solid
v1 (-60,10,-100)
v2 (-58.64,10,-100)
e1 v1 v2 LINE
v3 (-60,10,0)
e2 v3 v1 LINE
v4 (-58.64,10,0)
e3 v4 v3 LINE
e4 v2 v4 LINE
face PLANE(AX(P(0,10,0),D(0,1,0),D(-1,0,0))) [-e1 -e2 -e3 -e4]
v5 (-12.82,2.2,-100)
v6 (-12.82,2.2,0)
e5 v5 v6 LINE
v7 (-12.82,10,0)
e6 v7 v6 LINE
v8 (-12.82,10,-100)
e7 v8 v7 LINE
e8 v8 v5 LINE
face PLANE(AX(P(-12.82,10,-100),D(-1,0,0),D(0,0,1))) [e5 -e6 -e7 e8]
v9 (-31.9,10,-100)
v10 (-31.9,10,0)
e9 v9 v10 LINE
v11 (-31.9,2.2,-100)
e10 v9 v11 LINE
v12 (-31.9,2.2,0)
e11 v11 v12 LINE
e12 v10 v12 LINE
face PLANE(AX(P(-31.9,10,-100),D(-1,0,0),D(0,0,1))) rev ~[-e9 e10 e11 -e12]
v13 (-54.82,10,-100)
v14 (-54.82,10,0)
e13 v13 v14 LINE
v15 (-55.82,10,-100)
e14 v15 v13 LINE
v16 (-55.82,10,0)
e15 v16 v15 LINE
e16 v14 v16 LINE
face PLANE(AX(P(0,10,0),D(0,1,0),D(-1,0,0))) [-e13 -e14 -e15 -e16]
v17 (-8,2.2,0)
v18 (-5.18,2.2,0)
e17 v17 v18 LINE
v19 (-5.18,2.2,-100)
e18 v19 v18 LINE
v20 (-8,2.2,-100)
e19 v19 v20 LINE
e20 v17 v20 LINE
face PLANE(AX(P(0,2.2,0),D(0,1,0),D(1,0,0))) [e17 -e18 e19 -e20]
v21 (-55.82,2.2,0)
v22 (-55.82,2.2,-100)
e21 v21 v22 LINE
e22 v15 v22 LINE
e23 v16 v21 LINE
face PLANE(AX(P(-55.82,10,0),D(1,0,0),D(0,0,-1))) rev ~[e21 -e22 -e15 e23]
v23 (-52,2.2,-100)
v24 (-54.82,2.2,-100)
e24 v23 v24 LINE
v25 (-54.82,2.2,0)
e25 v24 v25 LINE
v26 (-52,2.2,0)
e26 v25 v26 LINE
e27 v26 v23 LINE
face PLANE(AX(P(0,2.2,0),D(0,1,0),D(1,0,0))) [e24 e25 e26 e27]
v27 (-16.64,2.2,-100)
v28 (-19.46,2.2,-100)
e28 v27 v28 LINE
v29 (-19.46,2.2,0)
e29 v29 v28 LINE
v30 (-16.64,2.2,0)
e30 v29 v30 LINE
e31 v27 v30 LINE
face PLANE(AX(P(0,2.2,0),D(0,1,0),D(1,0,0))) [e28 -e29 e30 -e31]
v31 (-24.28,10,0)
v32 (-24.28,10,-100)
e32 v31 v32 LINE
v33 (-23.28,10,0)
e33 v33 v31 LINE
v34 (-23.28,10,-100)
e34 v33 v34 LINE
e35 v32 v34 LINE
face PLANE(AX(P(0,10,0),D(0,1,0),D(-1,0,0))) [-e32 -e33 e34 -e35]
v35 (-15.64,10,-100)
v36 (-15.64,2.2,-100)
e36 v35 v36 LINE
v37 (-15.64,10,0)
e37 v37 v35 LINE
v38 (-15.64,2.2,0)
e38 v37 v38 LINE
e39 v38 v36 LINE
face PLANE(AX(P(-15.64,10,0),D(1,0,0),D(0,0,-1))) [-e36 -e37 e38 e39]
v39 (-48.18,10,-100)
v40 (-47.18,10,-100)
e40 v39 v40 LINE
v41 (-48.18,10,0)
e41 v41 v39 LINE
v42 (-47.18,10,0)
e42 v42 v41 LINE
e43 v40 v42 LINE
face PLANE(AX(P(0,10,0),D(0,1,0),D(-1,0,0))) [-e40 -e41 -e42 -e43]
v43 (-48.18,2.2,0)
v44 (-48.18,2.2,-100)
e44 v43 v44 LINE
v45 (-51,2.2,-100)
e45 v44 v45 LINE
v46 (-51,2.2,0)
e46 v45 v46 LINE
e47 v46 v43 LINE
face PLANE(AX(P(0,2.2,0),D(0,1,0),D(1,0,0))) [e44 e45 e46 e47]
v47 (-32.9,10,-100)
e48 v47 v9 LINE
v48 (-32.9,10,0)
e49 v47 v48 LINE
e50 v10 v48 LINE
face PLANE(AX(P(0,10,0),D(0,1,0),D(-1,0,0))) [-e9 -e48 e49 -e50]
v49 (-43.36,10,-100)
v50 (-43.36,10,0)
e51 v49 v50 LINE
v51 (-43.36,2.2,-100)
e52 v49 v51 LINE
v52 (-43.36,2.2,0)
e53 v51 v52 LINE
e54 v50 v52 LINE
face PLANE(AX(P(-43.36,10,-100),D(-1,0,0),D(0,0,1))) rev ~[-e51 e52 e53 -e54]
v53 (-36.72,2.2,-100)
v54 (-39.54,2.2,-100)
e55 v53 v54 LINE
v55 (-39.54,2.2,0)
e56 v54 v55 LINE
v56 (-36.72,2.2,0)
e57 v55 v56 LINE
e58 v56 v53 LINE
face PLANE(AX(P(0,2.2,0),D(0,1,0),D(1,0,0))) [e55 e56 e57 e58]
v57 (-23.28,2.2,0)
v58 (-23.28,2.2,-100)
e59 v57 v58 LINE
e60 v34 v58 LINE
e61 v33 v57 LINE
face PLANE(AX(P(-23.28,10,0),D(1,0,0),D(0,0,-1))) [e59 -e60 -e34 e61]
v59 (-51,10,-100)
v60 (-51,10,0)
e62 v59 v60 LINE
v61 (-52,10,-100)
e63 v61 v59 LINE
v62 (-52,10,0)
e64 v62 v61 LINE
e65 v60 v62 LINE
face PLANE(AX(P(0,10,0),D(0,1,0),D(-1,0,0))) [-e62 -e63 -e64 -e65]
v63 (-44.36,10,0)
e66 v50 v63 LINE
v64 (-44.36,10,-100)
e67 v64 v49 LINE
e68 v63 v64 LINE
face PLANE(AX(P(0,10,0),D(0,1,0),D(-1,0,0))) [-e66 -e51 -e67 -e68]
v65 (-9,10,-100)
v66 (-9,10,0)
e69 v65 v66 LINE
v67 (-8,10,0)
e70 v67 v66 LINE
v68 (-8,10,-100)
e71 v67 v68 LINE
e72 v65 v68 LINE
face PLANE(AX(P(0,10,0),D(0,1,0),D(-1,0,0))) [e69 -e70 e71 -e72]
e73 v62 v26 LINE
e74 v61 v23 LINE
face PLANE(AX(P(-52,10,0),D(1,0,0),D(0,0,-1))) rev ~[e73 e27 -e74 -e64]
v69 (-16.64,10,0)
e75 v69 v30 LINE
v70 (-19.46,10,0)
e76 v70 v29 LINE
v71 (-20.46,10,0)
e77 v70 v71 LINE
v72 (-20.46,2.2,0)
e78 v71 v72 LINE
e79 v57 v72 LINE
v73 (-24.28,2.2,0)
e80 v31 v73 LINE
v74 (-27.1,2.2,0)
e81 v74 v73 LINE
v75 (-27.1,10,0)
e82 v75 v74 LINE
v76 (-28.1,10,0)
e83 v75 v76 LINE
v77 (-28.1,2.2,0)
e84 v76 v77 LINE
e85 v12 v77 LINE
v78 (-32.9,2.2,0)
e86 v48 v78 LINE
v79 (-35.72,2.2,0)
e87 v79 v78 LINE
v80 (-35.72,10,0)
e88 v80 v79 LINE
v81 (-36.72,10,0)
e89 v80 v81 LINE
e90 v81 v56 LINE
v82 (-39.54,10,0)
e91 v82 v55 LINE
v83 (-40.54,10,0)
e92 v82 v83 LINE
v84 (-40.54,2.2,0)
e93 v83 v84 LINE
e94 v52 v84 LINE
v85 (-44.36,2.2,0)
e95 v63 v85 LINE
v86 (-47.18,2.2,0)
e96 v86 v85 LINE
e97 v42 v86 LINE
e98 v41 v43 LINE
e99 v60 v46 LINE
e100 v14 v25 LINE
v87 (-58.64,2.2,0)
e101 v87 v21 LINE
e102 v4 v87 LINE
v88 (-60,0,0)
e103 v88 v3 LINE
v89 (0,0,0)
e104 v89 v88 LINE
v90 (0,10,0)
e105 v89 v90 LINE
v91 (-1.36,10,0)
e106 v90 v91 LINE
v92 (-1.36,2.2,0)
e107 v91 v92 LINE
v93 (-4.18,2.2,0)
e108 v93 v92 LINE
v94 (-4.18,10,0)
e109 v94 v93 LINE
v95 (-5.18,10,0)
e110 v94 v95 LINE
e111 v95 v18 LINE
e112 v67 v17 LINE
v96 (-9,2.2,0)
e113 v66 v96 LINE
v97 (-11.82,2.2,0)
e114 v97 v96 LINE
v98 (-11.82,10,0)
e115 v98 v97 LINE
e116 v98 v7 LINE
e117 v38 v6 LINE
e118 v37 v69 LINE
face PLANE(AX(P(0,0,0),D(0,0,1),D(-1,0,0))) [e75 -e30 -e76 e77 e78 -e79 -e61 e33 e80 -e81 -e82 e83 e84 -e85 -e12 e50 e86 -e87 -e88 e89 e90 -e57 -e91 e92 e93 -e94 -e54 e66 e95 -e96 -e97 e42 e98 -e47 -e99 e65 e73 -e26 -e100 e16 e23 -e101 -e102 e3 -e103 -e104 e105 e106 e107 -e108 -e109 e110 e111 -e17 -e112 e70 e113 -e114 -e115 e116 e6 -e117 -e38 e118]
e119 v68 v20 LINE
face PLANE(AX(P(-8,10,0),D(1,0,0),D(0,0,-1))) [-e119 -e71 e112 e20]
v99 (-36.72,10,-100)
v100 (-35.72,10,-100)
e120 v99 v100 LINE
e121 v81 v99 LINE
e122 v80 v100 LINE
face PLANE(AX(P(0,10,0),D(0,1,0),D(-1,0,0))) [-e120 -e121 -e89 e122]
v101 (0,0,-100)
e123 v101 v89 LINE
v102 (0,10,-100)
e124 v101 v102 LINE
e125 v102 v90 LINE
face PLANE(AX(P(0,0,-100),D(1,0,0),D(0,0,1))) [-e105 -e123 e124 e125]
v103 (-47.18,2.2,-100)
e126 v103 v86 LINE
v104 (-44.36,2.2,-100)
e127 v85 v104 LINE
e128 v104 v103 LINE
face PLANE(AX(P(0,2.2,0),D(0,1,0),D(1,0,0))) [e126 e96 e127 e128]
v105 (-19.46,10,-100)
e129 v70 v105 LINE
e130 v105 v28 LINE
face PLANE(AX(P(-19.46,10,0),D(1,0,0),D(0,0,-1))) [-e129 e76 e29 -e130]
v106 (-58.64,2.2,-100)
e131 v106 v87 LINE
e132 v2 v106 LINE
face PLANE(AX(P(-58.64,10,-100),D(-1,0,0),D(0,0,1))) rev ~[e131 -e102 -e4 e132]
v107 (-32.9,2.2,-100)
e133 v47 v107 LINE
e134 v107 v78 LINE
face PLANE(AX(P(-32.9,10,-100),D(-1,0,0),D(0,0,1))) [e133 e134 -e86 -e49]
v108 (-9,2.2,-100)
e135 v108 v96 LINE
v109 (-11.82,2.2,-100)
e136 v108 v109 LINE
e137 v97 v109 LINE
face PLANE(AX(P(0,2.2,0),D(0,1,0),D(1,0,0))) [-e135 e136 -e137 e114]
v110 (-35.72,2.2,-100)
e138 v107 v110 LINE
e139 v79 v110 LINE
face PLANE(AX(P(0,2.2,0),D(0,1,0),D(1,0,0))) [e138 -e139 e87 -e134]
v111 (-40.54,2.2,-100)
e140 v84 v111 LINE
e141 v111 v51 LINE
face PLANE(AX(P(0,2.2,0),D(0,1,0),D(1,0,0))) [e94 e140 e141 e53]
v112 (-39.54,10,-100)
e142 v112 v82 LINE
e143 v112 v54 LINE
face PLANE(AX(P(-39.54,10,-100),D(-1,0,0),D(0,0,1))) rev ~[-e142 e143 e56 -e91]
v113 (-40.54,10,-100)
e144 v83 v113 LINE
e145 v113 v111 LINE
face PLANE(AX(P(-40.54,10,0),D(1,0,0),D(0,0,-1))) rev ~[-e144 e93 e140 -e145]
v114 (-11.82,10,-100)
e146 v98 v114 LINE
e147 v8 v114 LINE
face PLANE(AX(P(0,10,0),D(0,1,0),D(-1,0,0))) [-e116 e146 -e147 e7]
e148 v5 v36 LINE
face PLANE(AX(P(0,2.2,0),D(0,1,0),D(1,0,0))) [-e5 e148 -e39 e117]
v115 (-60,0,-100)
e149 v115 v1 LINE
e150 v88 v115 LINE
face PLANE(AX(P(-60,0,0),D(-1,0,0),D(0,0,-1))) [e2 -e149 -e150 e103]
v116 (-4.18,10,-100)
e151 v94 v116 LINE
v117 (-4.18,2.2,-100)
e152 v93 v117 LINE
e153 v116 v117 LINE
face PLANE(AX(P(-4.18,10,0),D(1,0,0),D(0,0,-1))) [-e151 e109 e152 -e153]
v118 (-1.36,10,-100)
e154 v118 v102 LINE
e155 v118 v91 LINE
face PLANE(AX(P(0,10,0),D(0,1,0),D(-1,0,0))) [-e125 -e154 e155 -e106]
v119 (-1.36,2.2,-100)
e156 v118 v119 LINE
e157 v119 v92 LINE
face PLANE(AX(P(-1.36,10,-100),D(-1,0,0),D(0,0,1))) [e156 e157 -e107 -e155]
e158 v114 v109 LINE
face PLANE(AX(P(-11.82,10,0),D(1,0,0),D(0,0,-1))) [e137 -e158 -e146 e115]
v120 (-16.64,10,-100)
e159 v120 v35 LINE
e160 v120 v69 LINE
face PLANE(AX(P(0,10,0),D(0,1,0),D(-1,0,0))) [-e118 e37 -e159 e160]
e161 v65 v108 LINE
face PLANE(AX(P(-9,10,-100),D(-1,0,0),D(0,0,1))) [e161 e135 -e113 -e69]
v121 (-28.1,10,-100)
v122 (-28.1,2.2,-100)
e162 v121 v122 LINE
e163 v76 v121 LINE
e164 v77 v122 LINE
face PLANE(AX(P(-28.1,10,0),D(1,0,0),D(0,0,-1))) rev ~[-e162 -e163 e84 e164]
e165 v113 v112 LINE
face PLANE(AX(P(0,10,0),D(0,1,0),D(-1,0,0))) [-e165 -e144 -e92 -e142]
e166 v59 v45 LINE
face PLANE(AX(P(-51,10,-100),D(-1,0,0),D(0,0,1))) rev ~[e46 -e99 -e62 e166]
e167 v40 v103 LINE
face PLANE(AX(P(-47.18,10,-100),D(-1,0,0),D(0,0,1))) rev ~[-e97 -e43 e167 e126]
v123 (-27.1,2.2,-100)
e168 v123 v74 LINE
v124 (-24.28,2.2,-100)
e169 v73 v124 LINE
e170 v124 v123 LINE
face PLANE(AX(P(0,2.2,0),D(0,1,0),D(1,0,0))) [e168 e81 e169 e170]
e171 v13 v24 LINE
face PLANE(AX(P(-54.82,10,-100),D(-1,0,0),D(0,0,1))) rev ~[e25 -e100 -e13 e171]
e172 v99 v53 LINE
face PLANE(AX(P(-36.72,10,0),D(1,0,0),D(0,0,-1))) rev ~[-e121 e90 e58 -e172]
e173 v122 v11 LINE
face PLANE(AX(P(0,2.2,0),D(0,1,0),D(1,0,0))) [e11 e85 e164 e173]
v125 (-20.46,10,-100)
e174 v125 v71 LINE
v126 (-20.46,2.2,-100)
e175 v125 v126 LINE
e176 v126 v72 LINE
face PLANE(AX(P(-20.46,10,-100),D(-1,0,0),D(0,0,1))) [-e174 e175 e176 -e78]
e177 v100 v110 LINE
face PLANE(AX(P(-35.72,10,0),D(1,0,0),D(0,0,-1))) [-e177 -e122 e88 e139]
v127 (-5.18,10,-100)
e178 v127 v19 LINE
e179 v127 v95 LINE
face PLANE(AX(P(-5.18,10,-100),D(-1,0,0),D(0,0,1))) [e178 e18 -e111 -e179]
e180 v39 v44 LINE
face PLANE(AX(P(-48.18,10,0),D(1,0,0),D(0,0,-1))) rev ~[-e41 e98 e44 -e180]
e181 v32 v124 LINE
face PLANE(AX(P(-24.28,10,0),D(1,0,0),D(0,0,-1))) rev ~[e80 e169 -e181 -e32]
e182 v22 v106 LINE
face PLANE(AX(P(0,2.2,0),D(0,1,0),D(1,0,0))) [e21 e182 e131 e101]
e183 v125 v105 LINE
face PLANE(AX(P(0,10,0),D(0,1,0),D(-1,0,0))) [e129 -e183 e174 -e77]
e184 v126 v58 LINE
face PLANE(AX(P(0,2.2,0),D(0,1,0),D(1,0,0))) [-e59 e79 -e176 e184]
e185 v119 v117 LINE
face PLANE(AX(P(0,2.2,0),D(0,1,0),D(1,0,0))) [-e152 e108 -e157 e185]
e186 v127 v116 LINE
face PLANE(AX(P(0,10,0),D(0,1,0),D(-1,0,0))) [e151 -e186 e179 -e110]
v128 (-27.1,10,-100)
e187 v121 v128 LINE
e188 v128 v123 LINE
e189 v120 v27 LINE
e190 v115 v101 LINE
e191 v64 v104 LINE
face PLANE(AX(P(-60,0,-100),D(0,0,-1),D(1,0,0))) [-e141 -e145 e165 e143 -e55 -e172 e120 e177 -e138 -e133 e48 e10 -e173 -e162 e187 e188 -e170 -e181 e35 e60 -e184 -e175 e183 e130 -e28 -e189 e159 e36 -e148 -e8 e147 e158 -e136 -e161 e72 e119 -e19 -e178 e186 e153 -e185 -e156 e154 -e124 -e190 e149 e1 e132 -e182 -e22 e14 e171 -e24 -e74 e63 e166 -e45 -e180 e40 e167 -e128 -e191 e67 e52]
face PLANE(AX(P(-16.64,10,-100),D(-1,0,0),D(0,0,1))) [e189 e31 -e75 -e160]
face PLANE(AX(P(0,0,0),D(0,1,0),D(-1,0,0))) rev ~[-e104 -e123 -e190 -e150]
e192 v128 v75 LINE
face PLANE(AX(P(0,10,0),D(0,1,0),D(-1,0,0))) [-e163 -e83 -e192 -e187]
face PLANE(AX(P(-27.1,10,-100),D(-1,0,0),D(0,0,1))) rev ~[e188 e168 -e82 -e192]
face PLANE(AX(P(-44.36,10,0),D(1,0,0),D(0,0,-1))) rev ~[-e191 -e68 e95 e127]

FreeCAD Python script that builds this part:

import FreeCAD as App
import Part
import Sketcher
from FreeCAD import Vector
Q = App.Units.Quantity


def add_polygon(sketch, points):
    """Adds a closed chain of lines whose ends are joined by coincident constraints."""
    first, n = sketch.GeometryCount, len(points)
    for a, b in zip(points, points[1:] + points[:1]):
        sketch.addGeometry(Part.LineSegment(App.Vector(*a, 0), App.Vector(*b, 0)), False)
    for i in range(n):
        sketch.addConstraint(Sketcher.Constraint("Coincident", first + i, 2, first + (i + 1) % n, 1))

doc = App.newDocument("Part")
body = doc.addObject("PartDesign::Body", "Body")

sketch1 = body.newObject("Sketcher::SketchObject", "Sketch")
sketch1.AttachmentSupport = (doc.getObject("XZ_Plane"), [""])
sketch1.MapMode = "FlatFace"
add_polygon(sketch1, [(-60, 0), (0, 0), (0, -100), (-60, -100)])
sketch1.addConstraint(Sketcher.Constraint("Horizontal", 0))
sketch1.addConstraint(Sketcher.Constraint("Vertical", 1))
sketch1.addConstraint(Sketcher.Constraint("Horizontal", 2))
sketch1.addConstraint(Sketcher.Constraint("Vertical", 3))
sketch1.addConstraint(Sketcher.Constraint("Coincident", 0, 2, -1, 1))
sketch1.addConstraint(Sketcher.Constraint("DistanceX", 0, 1, 0, 2, Q("60 mm")))
sketch1.addConstraint(Sketcher.Constraint("DistanceY", 1, 2, 1, 1, Q("100 mm")))
pad1 = body.newObject("PartDesign::Pad", "Pad")
pad1.Profile = sketch1
pad1.Length = 10
pad1.Reversed = True

sketch2 = body.newObject("Sketcher::SketchObject", "Sketch001")
sketch2.AttachmentSupport = (doc.getObject("XZ_Plane"), [""])
sketch2.MapMode = "FlatFace"
sketch2.AttachmentOffset = App.Placement(Vector(0, 0, -10), App.Rotation())
add_polygon(sketch2, [(-58.6, -100), (-58.6, 0), (-55.8, 0), (-55.8, -100)])
add_polygon(sketch2, [(-54.8, -100), (-54.8, 0), (-52, 0), (-52, -100)])
add_polygon(sketch2, [(-51, -100), (-51, 0), (-48.2, 0), (-48.2, -100)])
add_polygon(sketch2, [(-47.2, -100), (-47.2, 0), (-44.4, 0), (-44.4, -100)])
add_polygon(sketch2, [(-43.4, -100), (-43.4, 0), (-40.5, 0), (-40.5, -100)])
add_polygon(sketch2, [(-39.5, -100), (-39.5, 0), (-36.7, 0), (-36.7, -100)])
add_polygon(sketch2, [(-35.7, -100), (-35.7, 0), (-32.9, 0), (-32.9, -100)])
add_polygon(sketch2, [(-31.9, -100), (-31.9, 0), (-28.1, 0), (-28.1, -100)])
add_polygon(sketch2, [(-27.1, -100), (-27.1, 0), (-24.3, 0), (-24.3, -100)])
add_polygon(sketch2, [(-23.3, -100), (-23.3, 0), (-20.5, 0), (-20.5, -100)])
add_polygon(sketch2, [(-19.5, -100), (-19.5, 0), (-16.6, 0), (-16.6, -100)])
add_polygon(sketch2, [(-15.6, -100), (-15.6, 0), (-12.8, 0), (-12.8, -100)])
add_polygon(sketch2, [(-11.8, -100), (-11.8, 0), (-9, 0), (-9, -100)])
add_polygon(sketch2, [(-8, -100), (-8, 0), (-5.2, 0), (-5.2, -100)])
add_polygon(sketch2, [(-4.2, -100), (-4.2, 0), (-1.4, 0), (-1.4, -100)])
sketch2.addConstraint(Sketcher.Constraint("Vertical", 0))
sketch2.addConstraint(Sketcher.Constraint("Horizontal", 1))
sketch2.addConstraint(Sketcher.Constraint("Vertical", 2))
sketch2.addConstraint(Sketcher.Constraint("Horizontal", 3))
sketch2.addConstraint(Sketcher.Constraint("Vertical", 4))
sketch2.addConstraint(Sketcher.Constraint("Horizontal", 5))
sketch2.addConstraint(Sketcher.Constraint("Vertical", 6))
sketch2.addConstraint(Sketcher.Constraint("Horizontal", 7))
sketch2.addConstraint(Sketcher.Constraint("Vertical", 8))
sketch2.addConstraint(Sketcher.Constraint("Horizontal", 9))
sketch2.addConstraint(Sketcher.Constraint("Vertical", 10))
sketch2.addConstraint(Sketcher.Constraint("Horizontal", 11))
sketch2.addConstraint(Sketcher.Constraint("Vertical", 12))
sketch2.addConstraint(Sketcher.Constraint("Horizontal", 13))
sketch2.addConstraint(Sketcher.Constraint("Vertical", 14))
sketch2.addConstraint(Sketcher.Constraint("Horizontal", 15))
sketch2.addConstraint(Sketcher.Constraint("Vertical", 16))
sketch2.addConstraint(Sketcher.Constraint("Horizontal", 17))
sketch2.addConstraint(Sketcher.Constraint("Vertical", 18))
sketch2.addConstraint(Sketcher.Constraint("Horizontal", 19))
sketch2.addConstraint(Sketcher.Constraint("Vertical", 20))
sketch2.addConstraint(Sketcher.Constraint("Horizontal", 21))
sketch2.addConstraint(Sketcher.Constraint("Vertical", 22))
sketch2.addConstraint(Sketcher.Constraint("Horizontal", 23))
sketch2.addConstraint(Sketcher.Constraint("Vertical", 24))
sketch2.addConstraint(Sketcher.Constraint("Horizontal", 25))
sketch2.addConstraint(Sketcher.Constraint("Vertical", 26))
sketch2.addConstraint(Sketcher.Constraint("Horizontal", 27))
sketch2.addConstraint(Sketcher.Constraint("Vertical", 28))
sketch2.addConstraint(Sketcher.Constraint("Horizontal", 29))
sketch2.addConstraint(Sketcher.Constraint("Vertical", 30))
sketch2.addConstraint(Sketcher.Constraint("Horizontal", 31))
sketch2.addConstraint(Sketcher.Constraint("Vertical", 32))
sketch2.addConstraint(Sketcher.Constraint("Horizontal", 33))
sketch2.addConstraint(Sketcher.Constraint("Vertical", 34))
sketch2.addConstraint(Sketcher.Constraint("Horizontal", 35))
sketch2.addConstraint(Sketcher.Constraint("Vertical", 36))
sketch2.addConstraint(Sketcher.Constraint("Horizontal", 37))
sketch2.addConstraint(Sketcher.Constraint("Vertical", 38))
sketch2.addConstraint(Sketcher.Constraint("Horizontal", 39))
sketch2.addConstraint(Sketcher.Constraint("Vertical", 40))
sketch2.addConstraint(Sketcher.Constraint("Horizontal", 41))
sketch2.addConstraint(Sketcher.Constraint("Vertical", 42))
sketch2.addConstraint(Sketcher.Constraint("Horizontal", 43))
sketch2.addConstraint(Sketcher.Constraint("Vertical", 44))
sketch2.addConstraint(Sketcher.Constraint("Horizontal", 45))
sketch2.addConstraint(Sketcher.Constraint("Vertical", 46))
sketch2.addConstraint(Sketcher.Constraint("Horizontal", 47))
sketch2.addConstraint(Sketcher.Constraint("Vertical", 48))
sketch2.addConstraint(Sketcher.Constraint("Horizontal", 49))
sketch2.addConstraint(Sketcher.Constraint("Vertical", 50))
sketch2.addConstraint(Sketcher.Constraint("Horizontal", 51))
sketch2.addConstraint(Sketcher.Constraint("Vertical", 52))
sketch2.addConstraint(Sketcher.Constraint("Horizontal", 53))
sketch2.addConstraint(Sketcher.Constraint("Vertical", 54))
sketch2.addConstraint(Sketcher.Constraint("Horizontal", 55))
sketch2.addConstraint(Sketcher.Constraint("Vertical", 56))
sketch2.addConstraint(Sketcher.Constraint("Horizontal", 57))
sketch2.addConstraint(Sketcher.Constraint("Vertical", 58))
sketch2.addConstraint(Sketcher.Constraint("Horizontal", 59))
sketch2.addConstraint(Sketcher.Constraint("PointOnObject", 0, 2, -1))
sketch2.addConstraint(Sketcher.Constraint("PointOnObject", 4, 2, -1))
sketch2.addConstraint(Sketcher.Constraint("PointOnObject", 8, 2, -1))
sketch2.addConstraint(Sketcher.Constraint("PointOnObject", 12, 2, -1))
sketch2.addConstraint(Sketcher.Constraint("PointOnObject", 16, 2, -1))
sketch2.addConstraint(Sketcher.Constraint("PointOnObject", 20, 2, -1))
sketch2.addConstraint(Sketcher.Constraint("PointOnObject", 24, 2, -1))
sketch2.addConstraint(Sketcher.Constraint("PointOnObject", 28, 2, -1))
sketch2.addConstraint(Sketcher.Constraint("PointOnObject", 32, 2, -1))
sketch2.addConstraint(Sketcher.Constraint("PointOnObject", 36, 2, -1))
sketch2.addConstraint(Sketcher.Constraint("PointOnObject", 40, 2, -1))
sketch2.addConstraint(Sketcher.Constraint("PointOnObject", 44, 2, -1))
sketch2.addConstraint(Sketcher.Constraint("PointOnObject", 48, 2, -1))
sketch2.addConstraint(Sketcher.Constraint("PointOnObject", 52, 2, -1))
sketch2.addConstraint(Sketcher.Constraint("PointOnObject", 56, 2, -1))
sketch2.addConstraint(Sketcher.Constraint("Horizontal", 3, 2, 6, 2))
sketch2.addConstraint(Sketcher.Constraint("Horizontal", 7, 2, 10, 2))
sketch2.addConstraint(Sketcher.Constraint("Horizontal", 11, 2, 14, 2))
sketch2.addConstraint(Sketcher.Constraint("Horizontal", 15, 2, 18, 2))
sketch2.addConstraint(Sketcher.Constraint("Horizontal", 19, 2, 22, 2))
sketch2.addConstraint(Sketcher.Constraint("Horizontal", 23, 2, 26, 2))
sketch2.addConstraint(Sketcher.Constraint("Horizontal", 27, 2, 30, 2))
sketch2.addConstraint(Sketcher.Constraint("Horizontal", 31, 2, 34, 2))
sketch2.addConstraint(Sketcher.Constraint("Horizontal", 35, 2, 38, 2))
sketch2.addConstraint(Sketcher.Constraint("Horizontal", 39, 2, 42, 2))
sketch2.addConstraint(Sketcher.Constraint("Horizontal", 43, 2, 46, 2))
sketch2.addConstraint(Sketcher.Constraint("Horizontal", 47, 2, 50, 2))
sketch2.addConstraint(Sketcher.Constraint("Horizontal", 51, 2, 54, 2))
sketch2.addConstraint(Sketcher.Constraint("Horizontal", 55, 2, 58, 2))
sketch2.addConstraint(Sketcher.Constraint("Equal", 3, 5))
sketch2.addConstraint(Sketcher.Constraint("Equal", 7, 9))
sketch2.addConstraint(Sketcher.Constraint("Equal", 11, 13))
sketch2.addConstraint(Sketcher.Constraint("Equal", 15, 17))
sketch2.addConstraint(Sketcher.Constraint("Equal", 19, 21))
sketch2.addConstraint(Sketcher.Constraint("Equal", 23, 25))
sketch2.addConstraint(Sketcher.Constraint("Equal", 27, 33))
sketch2.addConstraint(Sketcher.Constraint("Equal", 35, 37))
sketch2.addConstraint(Sketcher.Constraint("Equal", 39, 41))
sketch2.addConstraint(Sketcher.Constraint("Equal", 43, 45))
sketch2.addConstraint(Sketcher.Constraint("Equal", 47, 49))
sketch2.addConstraint(Sketcher.Constraint("Equal", 51, 53))
sketch2.addConstraint(Sketcher.Constraint("Equal", 55, 57))
sketch2.addConstraint(Sketcher.Constraint("DistanceY", 0, 1, 0, 2, Q("100 mm")))
sketch2.addConstraint(Sketcher.Constraint("DistanceX", 29, 1, 29, 2, Q("3.8 mm")))
sketch2.addConstraint(Sketcher.Constraint("DistanceX", 1, 2, 4, 2, Q("1 mm")))
sketch2.addConstraint(Sketcher.Constraint("DistanceX", 5, 2, 8, 2, Q("1 mm")))
sketch2.addConstraint(Sketcher.Constraint("DistanceX", 9, 2, 12, 2, Q("1 mm")))
sketch2.addConstraint(Sketcher.Constraint("DistanceX", 13, 2, 16, 2, Q("1 mm")))
sketch2.addConstraint(Sketcher.Constraint("DistanceX", 17, 2, 20, 2, Q("1 mm")))
sketch2.addConstraint(Sketcher.Constraint("DistanceX", 21, 2, 24, 2, Q("1 mm")))
sketch2.addConstraint(Sketcher.Constraint("DistanceX", 25, 2, 28, 2, Q("1 mm")))
sketch2.addConstraint(Sketcher.Constraint("DistanceX", 29, 2, 32, 2, Q("1 mm")))
sketch2.addConstraint(Sketcher.Constraint("DistanceX", 33, 2, 36, 2, Q("1 mm")))
sketch2.addConstraint(Sketcher.Constraint("DistanceX", 37, 2, 40, 2, Q("1 mm")))
sketch2.addConstraint(Sketcher.Constraint("DistanceX", 41, 2, 44, 2, Q("1 mm")))
sketch2.addConstraint(Sketcher.Constraint("DistanceX", 45, 2, 48, 2, Q("1 mm")))
sketch2.addConstraint(Sketcher.Constraint("DistanceX", 49, 2, 52, 2, Q("1 mm")))
sketch2.addConstraint(Sketcher.Constraint("DistanceX", 53, 2, 56, 2, Q("1 mm")))
sketch2.addConstraint(Sketcher.Constraint("DistanceX", 1, 1, 1, 2, Q("2.82 mm")))
sketch2.addConstraint(Sketcher.Constraint("DistanceX", 57, 2, -1, 1, Q("1.36 mm")))
pocket1 = body.newObject("PartDesign::Pocket", "Pocket")
pocket1.Profile = sketch2
pocket1.Length = 7.8
pocket1.Reversed = True

doc.recompute()
